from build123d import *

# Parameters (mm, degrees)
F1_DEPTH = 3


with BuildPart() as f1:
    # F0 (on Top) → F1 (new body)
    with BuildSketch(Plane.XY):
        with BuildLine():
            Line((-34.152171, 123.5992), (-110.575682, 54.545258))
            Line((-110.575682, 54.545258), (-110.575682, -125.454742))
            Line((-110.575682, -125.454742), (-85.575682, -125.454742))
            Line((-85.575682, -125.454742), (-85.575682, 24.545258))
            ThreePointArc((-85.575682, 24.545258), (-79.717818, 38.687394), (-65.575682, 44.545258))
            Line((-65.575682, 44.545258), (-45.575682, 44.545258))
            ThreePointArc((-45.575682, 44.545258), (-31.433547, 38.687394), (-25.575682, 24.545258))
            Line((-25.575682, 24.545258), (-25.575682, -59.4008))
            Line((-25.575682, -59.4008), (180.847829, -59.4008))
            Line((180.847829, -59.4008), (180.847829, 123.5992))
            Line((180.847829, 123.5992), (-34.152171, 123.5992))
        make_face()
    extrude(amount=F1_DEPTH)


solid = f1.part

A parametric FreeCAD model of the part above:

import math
import FreeCAD as App
import Part
import Sketcher

V = App.Vector
Q = App.Units.Quantity

doc = App.newDocument("Part")
body = doc.addObject("PartDesign::Body", "Body")

# Sketch on XY plane
sketch1 = body.newObject("Sketcher::SketchObject", "Sketch")
sketch1.AttachmentSupport = (doc.getObject("XY_Plane"), [""])
sketch1.MapMode = "FlatFace"
sketch1.addGeometry(Part.LineSegment(V(-34, 124, 0), V(-111, 55, 0)), False)
sketch1.addGeometry(Part.LineSegment(V(-111, 55, 0), V(-111, -125, 0)), False)
sketch1.addGeometry(Part.LineSegment(V(-111, -125, 0), V(-86, -125, 0)), False)
sketch1.addGeometry(Part.LineSegment(V(-86, -125, 0), V(-86, 25, 0)), False)
sketch1.addGeometry(Part.ArcOfCircle(Part.Circle(V(-66, 25, 0), V(0, 0, 1), 20), math.radians(90), math.radians(180)), False)
sketch1.addGeometry(Part.LineSegment(V(-66, 45, 0), V(-46, 45, 0)), False)
sketch1.addGeometry(Part.ArcOfCircle(Part.Circle(V(-46, 25, 0), V(0, 0, 1), 20), math.radians(0), math.radians(90)), False)
sketch1.addGeometry(Part.LineSegment(V(-26, 25, 0), V(-26, -59, 0)), False)
sketch1.addGeometry(Part.LineSegment(V(-26, -59, 0), V(181, -59, 0)), False)
sketch1.addGeometry(Part.LineSegment(V(181, -59, 0), V(181, 124, 0)), False)
sketch1.addGeometry(Part.LineSegment(V(181, 124, 0), V(-34, 124, 0)), False)
sketch1.addConstraint(Sketcher.Constraint("Coincident", 0, 2, 1, 1))
sketch1.addConstraint(Sketcher.Constraint("Coincident", 1, 2, 2, 1))
sketch1.addConstraint(Sketcher.Constraint("Coincident", 2, 2, 3, 1))
sketch1.addConstraint(Sketcher.Constraint("Tangent", 3, 2, 4, 2))
sketch1.addConstraint(Sketcher.Constraint("Tangent", 4, 1, 5, 1))
sketch1.addConstraint(Sketcher.Constraint("Tangent", 5, 2, 6, 2))
sketch1.addConstraint(Sketcher.Constraint("Tangent", 6, 1, 7, 1))
sketch1.addConstraint(Sketcher.Constraint("Coincident", 7, 2, 8, 1))
sketch1.addConstraint(Sketcher.Constraint("Coincident", 8, 2, 9, 1))
sketch1.addConstraint(Sketcher.Constraint("Coincident", 9, 2, 10, 1))
sketch1.addConstraint(Sketcher.Constraint("Coincident", 10, 2, 0, 1))
sketch1.addConstraint(Sketcher.Constraint("Vertical", 1))
sketch1.addConstraint(Sketcher.Constraint("Horizontal", 2))
sketch1.addConstraint(Sketcher.Constraint("Vertical", 3))
sketch1.addConstraint(Sketcher.Constraint("Horizontal", 5))
sketch1.addConstraint(Sketcher.Constraint("Vertical", 7))
sketch1.addConstraint(Sketcher.Constraint("Horizontal", 8))
sketch1.addConstraint(Sketcher.Constraint("Vertical", 9))
sketch1.addConstraint(Sketcher.Constraint("Horizontal", 10))
sketch1.addConstraint(Sketcher.Constraint("Equal", 4, 6))
sketch1.addConstraint(Sketcher.Constraint("Radius", 4, 19.999999))
sketch1.addConstraint(Sketcher.Constraint("DistanceX", 2, 1, 2, 2, 25.0))
sketch1.addConstraint(Sketcher.Constraint("DistanceX", 5, 1, 5, 2, 20.0))
sketch1.addConstraint(Sketcher.Constraint("DistanceX", 10, 2, 10, 1, 215.0))
sketch1.addConstraint(Sketcher.Constraint("DistanceY", 1, 2, 1, 1, 180.0))
sketch1.addConstraint(Sketcher.Constraint("DistanceY", 3, 1, 3, 2, 150.0))
sketch1.addConstraint(Sketcher.Constraint("DistanceY", 9, 1, 9, 2, 183.0))
sketch1.addConstraint(Sketcher.Constraint("Distance", 0, 103.0))
sketch1.addConstraint(Sketcher.Constraint("Angle", 0, Q("-137.9 deg")))
sketch1.addConstraint(Sketcher.Constraint("DistanceY", 7, 2, -1, 1, 59.4008))
sketch1.addConstraint(Sketcher.Constraint("DistanceX", 0, 2, -1, 1, 110.575682))
pad1 = body.newObject("PartDesign::Pad", "Pad")
pad1.Profile = sketch1
pad1.Length = 3

doc.recompute()
